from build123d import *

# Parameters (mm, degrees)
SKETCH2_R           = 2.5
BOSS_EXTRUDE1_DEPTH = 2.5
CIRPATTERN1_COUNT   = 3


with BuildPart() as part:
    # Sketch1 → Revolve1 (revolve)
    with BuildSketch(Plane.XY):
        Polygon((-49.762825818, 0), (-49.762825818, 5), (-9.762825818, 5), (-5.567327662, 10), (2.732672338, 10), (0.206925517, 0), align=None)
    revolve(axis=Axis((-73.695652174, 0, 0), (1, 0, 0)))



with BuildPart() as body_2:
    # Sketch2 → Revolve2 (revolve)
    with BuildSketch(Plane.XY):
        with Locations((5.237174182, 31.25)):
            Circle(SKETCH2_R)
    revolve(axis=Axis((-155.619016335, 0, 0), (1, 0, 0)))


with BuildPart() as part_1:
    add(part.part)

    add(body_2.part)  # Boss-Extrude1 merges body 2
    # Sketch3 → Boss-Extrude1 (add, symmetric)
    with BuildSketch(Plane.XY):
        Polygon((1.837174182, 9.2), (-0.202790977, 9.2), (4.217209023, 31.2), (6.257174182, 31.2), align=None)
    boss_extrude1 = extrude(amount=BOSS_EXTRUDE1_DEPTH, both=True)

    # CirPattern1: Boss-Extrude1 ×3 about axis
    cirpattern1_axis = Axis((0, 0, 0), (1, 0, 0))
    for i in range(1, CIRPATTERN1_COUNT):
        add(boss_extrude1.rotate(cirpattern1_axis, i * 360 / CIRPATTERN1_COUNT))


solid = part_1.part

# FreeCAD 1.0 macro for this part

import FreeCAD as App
import Part
import Sketcher
Q = App.Units.Quantity

doc = App.newDocument("Part")
params = doc.addObject("Spreadsheet::Sheet", "Params")
for row, (alias, value) in enumerate([
    ("sketch1_width", "40 mm"),
    ("sketch1_height", "5 mm"),
    ("sketch1_width2", "8.3 mm"),
    ("revolution_angle", "360 deg"),
    ("sketch2_diameter", "5 mm"),
    ("revolution2_angle", "360 deg"),
    ("pad1_length", "5 mm"),
], start=1):
    params.set(f"A{row}", alias)
    params.set(f"B{row}", "=" + value)
    params.setAlias(f"B{row}", alias)

body = doc.addObject("PartDesign::Body", "Body")

sketch1 = body.newObject("Sketcher::SketchObject", "Sketch")
sketch1.AttachmentSupport = (doc.getObject("XY_Plane"), [""])
sketch1.MapMode = "FlatFace"
sketch1.addGeometry([
    Part.LineSegment(App.Vector(-49.762826, 5, 0), App.Vector(-49.762826, 0, 0)),
    Part.LineSegment(App.Vector(-49.762826, 0, 0), App.Vector(0.206926, 0, 0)),
    Part.LineSegment(App.Vector(0.206926, 0, 0), App.Vector(2.732672, 10, 0)),
    Part.LineSegment(App.Vector(2.732672, 10, 0), App.Vector(-5.567328, 10, 0)),
    Part.LineSegment(App.Vector(-5.567328, 10, 0), App.Vector(-9.762826, 5, 0)),
    Part.LineSegment(App.Vector(-9.762826, 5, 0), App.Vector(-49.762826, 5, 0)),
], False)
sketch1.addConstraint([
    Sketcher.Constraint("Coincident", 0, 2, 1, 1),
    Sketcher.Constraint("Coincident", 1, 2, 2, 1),
    Sketcher.Constraint("Coincident", 2, 2, 3, 1),
    Sketcher.Constraint("Coincident", 3, 2, 4, 1),
    Sketcher.Constraint("Coincident", 4, 2, 5, 1),
    Sketcher.Constraint("Coincident", 5, 2, 0, 1),
    Sketcher.Constraint("Vertical", 0),
    Sketcher.Constraint("Horizontal", 1),
    Sketcher.Constraint("Horizontal", 3),
    Sketcher.Constraint("Horizontal", 5),
    Sketcher.Constraint("PointOnObject", 0, 2, -1),
    Sketcher.Constraint("DistanceX", 5, 2, 5, 1, 40.0),
    Sketcher.Constraint("DistanceY", 0, 2, 0, 1, 5.0),
    Sketcher.Constraint("Angle", 4, Q("-130 deg")),
    Sketcher.Constraint("DistanceX", 3, 2, 3, 1, 8.3),
    Sketcher.Constraint("DistanceY", -1, 1, 2, 2, 10.0),
    Sketcher.Constraint("DistanceX", 1, 1, 1, 2, 49.969751),
    Sketcher.Constraint("DistanceX", 0, 2, -1, 1, 49.762826),
])
sketch1.setExpression("Constraints[11]", "Params.sketch1_width")
sketch1.setExpression("Constraints[12]", "Params.sketch1_height")
sketch1.setExpression("Constraints[14]", "Params.sketch1_width2")
revolution = body.newObject("PartDesign::Revolution", "Revolution")
revolution.Profile = sketch1
revolution.ReferenceAxis = (sketch1, ["H_Axis"])
revolution.setExpression("Angle", "Params.revolution_angle")
body2 = doc.addObject("PartDesign::Body", "Body001")

sketch2 = body2.newObject("Sketcher::SketchObject", "Sketch001")
sketch2.AttachmentSupport = (doc.getObject("XY_Plane001"), [""])
sketch2.MapMode = "FlatFace"
sketch2.addGeometry(Part.Circle(App.Vector(5.237174, 31.25, 0), App.Vector(0, 0, 1), 2.5), False)
sketch2.addConstraint([
    Sketcher.Constraint("Diameter", 0, 5.0),
    Sketcher.Constraint("DistanceY", -1, 1, 0, 3, 31.25),
    Sketcher.Constraint("DistanceX", -1, 1, 0, 3, 5.237174),
])
sketch2.setExpression("Constraints[0]", "Params.sketch2_diameter")
revolution2 = body2.newObject("PartDesign::Revolution", "Revolution001")
revolution2.Profile = sketch2
revolution2.ReferenceAxis = (sketch2, ["H_Axis"])
revolution2.setExpression("Angle", "Params.revolution2_angle")
body.AllowCompound = True
doc.recompute()

boolean = body.newObject("PartDesign::Boolean", "Boolean")
boolean.Type = "Fuse"
boolean.addObjects([body2])

sketch3 = body.newObject("Sketcher::SketchObject", "Sketch002")
sketch3.AttachmentSupport = (doc.getObject("XY_Plane"), [""])
sketch3.MapMode = "FlatFace"
sketch3.addGeometry([
    Part.LineSegment(App.Vector(-0.202791, 9.2, 0), App.Vector(1.837174, 9.2, 0)),
    Part.LineSegment(App.Vector(1.837174, 9.2, 0), App.Vector(6.257174, 31.2, 0)),
    Part.LineSegment(App.Vector(6.257174, 31.2, 0), App.Vector(4.217209, 31.2, 0)),
    Part.LineSegment(App.Vector(4.217209, 31.2, 0), App.Vector(-0.202791, 9.2, 0)),
], False)
sketch3.addConstraint([
    Sketcher.Constraint("Coincident", 0, 2, 1, 1),
    Sketcher.Constraint("Coincident", 1, 2, 2, 1),
    Sketcher.Constraint("Coincident", 2, 2, 3, 1),
    Sketcher.Constraint("Coincident", 3, 2, 0, 1),
    Sketcher.Constraint("Horizontal", 0),
    Sketcher.Constraint("Horizontal", 2),
    Sketcher.Constraint("Parallel", 1, 3),
    Sketcher.Constraint("DistanceY", 0, 2, 1, 2, 22.0),
    Sketcher.Constraint("DistanceY", -1, 1, 0, 2, 9.2),
    Sketcher.Constraint("Angle", 1, Q("78.639993 deg")),
    Sketcher.Constraint("DistanceX", 0, 1, 0, 2, 2.039965),
    Sketcher.Constraint("DistanceX", -1, 1, 2, 2, 4.217209),
])
pad1 = body.newObject("PartDesign::Pad", "Pad")
pad1.Profile = sketch3
pad1.setExpression("Length", "Params.pad1_length")
pad1.Midplane = True
doc.recompute()

polarpattern = body.newObject("PartDesign::PolarPattern", "PolarPattern")
polarpattern.Originals = [pad1]
polarpattern.Axis = (doc.getObject("X_Axis"), [""])
polarpattern.Angle = 360
polarpattern.Occurrences = 3
body.Tip = polarpattern

doc.recompute()
